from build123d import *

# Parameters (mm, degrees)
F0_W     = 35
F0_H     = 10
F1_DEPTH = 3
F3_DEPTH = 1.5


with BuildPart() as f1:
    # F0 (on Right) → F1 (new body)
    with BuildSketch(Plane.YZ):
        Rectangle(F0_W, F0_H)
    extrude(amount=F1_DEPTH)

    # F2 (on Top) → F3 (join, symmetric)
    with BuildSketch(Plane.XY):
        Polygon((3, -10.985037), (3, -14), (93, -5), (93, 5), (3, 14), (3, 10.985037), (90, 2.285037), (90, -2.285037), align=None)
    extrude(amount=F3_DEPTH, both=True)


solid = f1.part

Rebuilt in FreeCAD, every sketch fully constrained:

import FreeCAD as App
import Part
import Sketcher

V = App.Vector

doc = App.newDocument("Part")
params = doc.addObject("Spreadsheet::Sheet", "Params")
for row, (alias, value) in enumerate([
    ("sketch1_width", "35 mm"),
    ("sketch1_height", "10 mm"),
    ("pad1_length", "3 mm"),
    ("sketch2_height", "10 mm"),
    ("pad2_length", "3 mm"),
], start=1):
    params.set(f"A{row}", alias)
    params.set(f"B{row}", "=" + value)
    params.setAlias(f"B{row}", alias)

body = doc.addObject("PartDesign::Body", "Body")

# Sketch on YZ plane
sketch1 = body.newObject("Sketcher::SketchObject", "Sketch")
sketch1.AttachmentSupport = (doc.getObject("YZ_Plane"), [""])
sketch1.MapMode = "FlatFace"
sketch1.addGeometry(Part.LineSegment(V(-18, 5, 0), V(-18, -5, 0)), False)
sketch1.addGeometry(Part.LineSegment(V(-18, -5, 0), V(18, -5, 0)), False)
sketch1.addGeometry(Part.LineSegment(V(18, -5, 0), V(18, 5, 0)), False)
sketch1.addGeometry(Part.LineSegment(V(18, 5, 0), V(-18, 5, 0)), False)
sketch1.addConstraint(Sketcher.Constraint("Coincident", 0, 2, 1, 1))
sketch1.addConstraint(Sketcher.Constraint("Coincident", 1, 2, 2, 1))
sketch1.addConstraint(Sketcher.Constraint("Coincident", 2, 2, 3, 1))
sketch1.addConstraint(Sketcher.Constraint("Coincident", 3, 2, 0, 1))
sketch1.addConstraint(Sketcher.Constraint("Vertical", 0))
sketch1.addConstraint(Sketcher.Constraint("Horizontal", 1))
sketch1.addConstraint(Sketcher.Constraint("Vertical", 2))
sketch1.addConstraint(Sketcher.Constraint("Horizontal", 3))
sketch1.addConstraint(Sketcher.Constraint("Symmetric", 0, 2, 2, 2, -1, 1))
sketch1.addConstraint(Sketcher.Constraint("DistanceX", 1, 1, 1, 2, 35.0))
sketch1.addConstraint(Sketcher.Constraint("DistanceY", 0, 2, 0, 1, 10.0))
sketch1.setExpression("Constraints[9]", "Params.sketch1_width")
sketch1.setExpression("Constraints[10]", "Params.sketch1_height")
pad1 = body.newObject("PartDesign::Pad", "Pad")
pad1.Profile = sketch1
pad1.setExpression("Length", "Params.pad1_length")

# Sketch on XY plane
sketch2 = body.newObject("Sketcher::SketchObject", "Sketch001")
sketch2.AttachmentSupport = (doc.getObject("XY_Plane"), [""])
sketch2.MapMode = "FlatFace"
sketch2.addGeometry(Part.LineSegment(V(3, -11, 0), V(3, -14, 0)), False)
sketch2.addGeometry(Part.LineSegment(V(3, -14, 0), V(93, -5, 0)), False)
sketch2.addGeometry(Part.LineSegment(V(93, -5, 0), V(93, 5, 0)), False)
sketch2.addGeometry(Part.LineSegment(V(93, 5, 0), V(3, 14, 0)), False)
sketch2.addGeometry(Part.LineSegment(V(3, 14, 0), V(3, 11, 0)), False)
sketch2.addGeometry(Part.LineSegment(V(3, 11, 0), V(90, 2.3, 0)), False)
sketch2.addGeometry(Part.LineSegment(V(90, 2.3, 0), V(90, -2.3, 0)), False)
sketch2.addGeometry(Part.LineSegment(V(90, -2.3, 0), V(3, -11, 0)), False)
sketch2.addConstraint(Sketcher.Constraint("Coincident", 0, 2, 1, 1))
sketch2.addConstraint(Sketcher.Constraint("Coincident", 1, 2, 2, 1))
sketch2.addConstraint(Sketcher.Constraint("Coincident", 2, 2, 3, 1))
sketch2.addConstraint(Sketcher.Constraint("Coincident", 3, 2, 4, 1))
sketch2.addConstraint(Sketcher.Constraint("Coincident", 4, 2, 5, 1))
sketch2.addConstraint(Sketcher.Constraint("Coincident", 5, 2, 6, 1))
sketch2.addConstraint(Sketcher.Constraint("Coincident", 6, 2, 7, 1))
sketch2.addConstraint(Sketcher.Constraint("Coincident", 7, 2, 0, 1))
sketch2.addConstraint(Sketcher.Constraint("Vertical", 0))
sketch2.addConstraint(Sketcher.Constraint("Vertical", 2))
sketch2.addConstraint(Sketcher.Constraint("Vertical", 4))
sketch2.addConstraint(Sketcher.Constraint("Vertical", 6))
sketch2.addConstraint(Sketcher.Constraint("Symmetric", 0, 2, 3, 2, -1))
sketch2.addConstraint(Sketcher.Constraint("Parallel", 3, 5))
sketch2.addConstraint(Sketcher.Constraint("Parallel", 1, 7))
sketch2.addConstraint(Sketcher.Constraint("Equal", 0, 4))
sketch2.addConstraint(Sketcher.Constraint("Equal", 1, 3))
sketch2.addConstraint(Sketcher.Constraint("DistanceY", 2, 1, 2, 2, 10.0))
sketch2.addConstraint(Sketcher.Constraint("DistanceX", -1, 1, 0, 2, 3.0))
sketch2.addConstraint(Sketcher.Constraint("DistanceY", 0, 2, -1, 1, 14.0))
sketch2.addConstraint(Sketcher.Constraint("DistanceX", -1, 1, 1, 2, 93.0))
sketch2.addConstraint(Sketcher.Constraint("DistanceX", -1, 1, 5, 2, 90.0))
sketch2.addConstraint(Sketcher.Constraint("DistanceY", 0, 2, 0, 1, 3.014963))
sketch2.setExpression("Constraints[17]", "Params.sketch2_height")
pad2 = body.newObject("PartDesign::Pad", "Pad001")
pad2.Profile = sketch2
pad2.setExpression("Length", "Params.pad2_length")
pad2.Midplane = True

doc.recompute()
